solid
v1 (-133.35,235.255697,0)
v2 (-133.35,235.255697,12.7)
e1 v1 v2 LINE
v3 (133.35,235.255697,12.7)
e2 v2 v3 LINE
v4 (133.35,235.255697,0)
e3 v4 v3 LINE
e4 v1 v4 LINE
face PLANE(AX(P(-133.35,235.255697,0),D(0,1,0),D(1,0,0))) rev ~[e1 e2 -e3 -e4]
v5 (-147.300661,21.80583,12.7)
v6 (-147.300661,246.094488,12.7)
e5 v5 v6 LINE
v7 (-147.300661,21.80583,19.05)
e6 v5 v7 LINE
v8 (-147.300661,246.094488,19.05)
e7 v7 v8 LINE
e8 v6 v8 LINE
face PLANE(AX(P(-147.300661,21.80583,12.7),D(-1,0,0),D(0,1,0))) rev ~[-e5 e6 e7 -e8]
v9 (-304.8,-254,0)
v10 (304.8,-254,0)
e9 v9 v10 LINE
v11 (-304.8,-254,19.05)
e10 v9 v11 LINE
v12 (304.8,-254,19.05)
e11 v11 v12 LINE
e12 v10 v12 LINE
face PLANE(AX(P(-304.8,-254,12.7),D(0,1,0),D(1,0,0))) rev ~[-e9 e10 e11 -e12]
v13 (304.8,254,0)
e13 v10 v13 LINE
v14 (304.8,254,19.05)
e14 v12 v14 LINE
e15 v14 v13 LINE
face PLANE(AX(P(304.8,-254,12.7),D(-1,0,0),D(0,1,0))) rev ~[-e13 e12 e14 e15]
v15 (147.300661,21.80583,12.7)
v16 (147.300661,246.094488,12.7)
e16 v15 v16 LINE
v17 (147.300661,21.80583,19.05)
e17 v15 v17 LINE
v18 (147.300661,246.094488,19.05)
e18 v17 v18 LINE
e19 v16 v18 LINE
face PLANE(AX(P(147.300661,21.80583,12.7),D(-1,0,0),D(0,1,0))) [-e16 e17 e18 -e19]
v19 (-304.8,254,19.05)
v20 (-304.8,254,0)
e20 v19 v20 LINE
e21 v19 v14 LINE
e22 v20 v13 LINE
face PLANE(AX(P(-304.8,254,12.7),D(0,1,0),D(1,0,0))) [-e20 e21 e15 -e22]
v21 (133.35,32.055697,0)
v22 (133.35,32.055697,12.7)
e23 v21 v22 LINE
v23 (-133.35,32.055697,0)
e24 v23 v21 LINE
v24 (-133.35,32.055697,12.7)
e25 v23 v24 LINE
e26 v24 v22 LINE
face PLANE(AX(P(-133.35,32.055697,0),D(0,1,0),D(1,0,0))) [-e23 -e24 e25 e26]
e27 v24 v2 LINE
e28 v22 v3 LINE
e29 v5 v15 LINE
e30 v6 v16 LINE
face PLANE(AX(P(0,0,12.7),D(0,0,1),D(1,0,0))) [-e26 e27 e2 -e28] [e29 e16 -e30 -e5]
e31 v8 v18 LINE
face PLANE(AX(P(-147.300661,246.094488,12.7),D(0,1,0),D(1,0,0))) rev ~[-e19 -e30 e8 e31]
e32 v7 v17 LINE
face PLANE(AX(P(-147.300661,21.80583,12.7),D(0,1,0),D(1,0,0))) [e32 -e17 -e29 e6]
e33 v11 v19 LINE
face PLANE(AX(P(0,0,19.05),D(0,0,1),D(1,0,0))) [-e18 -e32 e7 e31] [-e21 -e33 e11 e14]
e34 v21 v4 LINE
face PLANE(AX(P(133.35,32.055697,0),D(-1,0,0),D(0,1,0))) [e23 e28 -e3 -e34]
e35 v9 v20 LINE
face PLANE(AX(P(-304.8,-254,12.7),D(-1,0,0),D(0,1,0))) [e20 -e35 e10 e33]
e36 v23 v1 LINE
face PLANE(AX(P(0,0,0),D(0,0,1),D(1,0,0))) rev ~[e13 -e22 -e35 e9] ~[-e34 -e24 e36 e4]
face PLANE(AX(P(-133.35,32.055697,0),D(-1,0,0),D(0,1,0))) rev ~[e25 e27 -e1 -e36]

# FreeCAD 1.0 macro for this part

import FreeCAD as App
import Part
import Sketcher

V = App.Vector
Q = App.Units.Quantity

doc = App.newDocument("Part")
params = doc.addObject("Spreadsheet::Sheet", "Params")
for row, (alias, value) in enumerate([
    ("sketch1_width", "24 in"),
    ("sketch1_height", "20 in"),
    ("sketch1_height2", "8 in"),
    ("sketch1_width2", "10.5 in"),
    ("pad1_length", "0.5 in"),
    ("sketch2_width", "24 in"),
    ("sketch2_height", "20 in"),
    ("pad2_length", "0.25 in"),
], start=1):
    params.set(f"A{row}", alias)
    params.set(f"B{row}", "=" + value)
    params.setAlias(f"B{row}", alias)

body = doc.addObject("PartDesign::Body", "Body")

# Sketch on XY plane
sketch1 = body.newObject("Sketcher::SketchObject", "Sketch")
sketch1.AttachmentSupport = (doc.getObject("XY_Plane"), [""])
sketch1.MapMode = "FlatFace"
sketch1.addGeometry([
    Part.LineSegment(V(-305, 254, 0), V(-305, -254, 0)),  # 0
    Part.LineSegment(V(-305, -254, 0), V(305, -254, 0)),  # 1
    Part.LineSegment(V(305, -254, 0), V(305, 254, 0)),  # 2
    Part.LineSegment(V(305, 254, 0), V(-305, 254, 0)),  # 3
    Part.LineSegment(V(133, 32, 0), V(-133, 32, 0)),  # 4
    Part.LineSegment(V(-133, 32, 0), V(-133, 235, 0)),  # 5
    Part.LineSegment(V(-133, 235, 0), V(133, 235, 0)),  # 6
    Part.LineSegment(V(133, 235, 0), V(133, 32, 0)),  # 7
], False)
sketch1.addConstraint([
    Sketcher.Constraint("Coincident", 0, 2, 1, 1),
    Sketcher.Constraint("Coincident", 1, 2, 2, 1),
    Sketcher.Constraint("Coincident", 2, 2, 3, 1),
    Sketcher.Constraint("Coincident", 3, 2, 0, 1),
    Sketcher.Constraint("Coincident", 4, 2, 5, 1),
    Sketcher.Constraint("Coincident", 5, 2, 6, 1),
    Sketcher.Constraint("Coincident", 6, 2, 7, 1),
    Sketcher.Constraint("Coincident", 7, 2, 4, 1),
    Sketcher.Constraint("Vertical", 0),
    Sketcher.Constraint("Horizontal", 1),
    Sketcher.Constraint("Vertical", 2),
    Sketcher.Constraint("Horizontal", 3),
    Sketcher.Constraint("Horizontal", 4),
    Sketcher.Constraint("Vertical", 5),
    Sketcher.Constraint("Horizontal", 6),
    Sketcher.Constraint("Vertical", 7),
    Sketcher.Constraint("Symmetric", 0, 2, 2, 2, -1, 1),
    Sketcher.Constraint("DistanceX", 1, 1, 1, 2, Q("24 in")),
    Sketcher.Constraint("DistanceY", 0, 2, 0, 1, Q("20 in")),
    Sketcher.Constraint("DistanceY", 5, 1, 5, 2, Q("8 in")),
    Sketcher.Constraint("DistanceX", 4, 2, 4, 1, Q("10.5 in")),
    Sketcher.Constraint("DistanceX", 4, 2, -1, 1, Q("5.25 in")),
    Sketcher.Constraint("DistanceY", -1, 1, 4, 2, Q("32.055697 mm")),
])
sketch1.setExpression("Constraints[17]", "Params.sketch1_width")
sketch1.setExpression("Constraints[18]", "Params.sketch1_height")
sketch1.setExpression("Constraints[19]", "Params.sketch1_height2")
sketch1.setExpression("Constraints[20]", "Params.sketch1_width2")
pad1 = body.newObject("PartDesign::Pad", "Pad")
pad1.Profile = sketch1
pad1.setExpression("Length", "Params.pad1_length")

# Sketch on XY plane
sketch2 = body.newObject("Sketcher::SketchObject", "Sketch001")
sketch2.AttachmentSupport = (doc.getObject("XY_Plane"), [""])
sketch2.MapMode = "FlatFace"
sketch2.AttachmentOffset = App.Placement(V(0, 0, 0.5 * 25.4), App.Rotation())
sketch2.addGeometry([
    Part.LineSegment(V(-305, 254, 0), V(-305, -254, 0)),  # 0
    Part.LineSegment(V(-305, -254, 0), V(305, -254, 0)),  # 1
    Part.LineSegment(V(305, -254, 0), V(305, 254, 0)),  # 2
    Part.LineSegment(V(305, 254, 0), V(-305, 254, 0)),  # 3
    Part.LineSegment(V(147, 22, 0), V(-147, 22, 0)),  # 4
    Part.LineSegment(V(-147, 22, 0), V(-147, 246, 0)),  # 5
    Part.LineSegment(V(-147, 246, 0), V(147, 246, 0)),  # 6
    Part.LineSegment(V(147, 246, 0), V(147, 22, 0)),  # 7
], False)
sketch2.addConstraint([
    Sketcher.Constraint("Coincident", 0, 2, 1, 1),
    Sketcher.Constraint("Coincident", 1, 2, 2, 1),
    Sketcher.Constraint("Coincident", 2, 2, 3, 1),
    Sketcher.Constraint("Coincident", 3, 2, 0, 1),
    Sketcher.Constraint("Coincident", 4, 2, 5, 1),
    Sketcher.Constraint("Coincident", 5, 2, 6, 1),
    Sketcher.Constraint("Coincident", 6, 2, 7, 1),
    Sketcher.Constraint("Coincident", 7, 2, 4, 1),
    Sketcher.Constraint("Vertical", 0),
    Sketcher.Constraint("Horizontal", 1),
    Sketcher.Constraint("Vertical", 2),
    Sketcher.Constraint("Horizontal", 3),
    Sketcher.Constraint("Horizontal", 4),
    Sketcher.Constraint("Vertical", 5),
    Sketcher.Constraint("Horizontal", 6),
    Sketcher.Constraint("Vertical", 7),
    Sketcher.Constraint("Symmetric", 0, 2, 2, 2, -1, 1),
    Sketcher.Constraint("DistanceX", 1, 1, 1, 2, Q("24 in")),
    Sketcher.Constraint("DistanceY", 0, 2, 0, 1, Q("20 in")),
    Sketcher.Constraint("DistanceX", 4, 2, 4, 1, Q("294.601322 mm")),
    Sketcher.Constraint("DistanceY", 5, 1, 5, 2, Q("224.288658 mm")),
    Sketcher.Constraint("DistanceX", 4, 2, -1, 1, Q("147.300661 mm")),
    Sketcher.Constraint("DistanceY", -1, 1, 4, 2, Q("21.80583 mm")),
])
sketch2.setExpression("Constraints[17]", "Params.sketch2_width")
sketch2.setExpression("Constraints[18]", "Params.sketch2_height")
pad2 = body.newObject("PartDesign::Pad", "Pad001")
pad2.Profile = sketch2
pad2.setExpression("Length", "Params.pad2_length")

doc.recompute()
